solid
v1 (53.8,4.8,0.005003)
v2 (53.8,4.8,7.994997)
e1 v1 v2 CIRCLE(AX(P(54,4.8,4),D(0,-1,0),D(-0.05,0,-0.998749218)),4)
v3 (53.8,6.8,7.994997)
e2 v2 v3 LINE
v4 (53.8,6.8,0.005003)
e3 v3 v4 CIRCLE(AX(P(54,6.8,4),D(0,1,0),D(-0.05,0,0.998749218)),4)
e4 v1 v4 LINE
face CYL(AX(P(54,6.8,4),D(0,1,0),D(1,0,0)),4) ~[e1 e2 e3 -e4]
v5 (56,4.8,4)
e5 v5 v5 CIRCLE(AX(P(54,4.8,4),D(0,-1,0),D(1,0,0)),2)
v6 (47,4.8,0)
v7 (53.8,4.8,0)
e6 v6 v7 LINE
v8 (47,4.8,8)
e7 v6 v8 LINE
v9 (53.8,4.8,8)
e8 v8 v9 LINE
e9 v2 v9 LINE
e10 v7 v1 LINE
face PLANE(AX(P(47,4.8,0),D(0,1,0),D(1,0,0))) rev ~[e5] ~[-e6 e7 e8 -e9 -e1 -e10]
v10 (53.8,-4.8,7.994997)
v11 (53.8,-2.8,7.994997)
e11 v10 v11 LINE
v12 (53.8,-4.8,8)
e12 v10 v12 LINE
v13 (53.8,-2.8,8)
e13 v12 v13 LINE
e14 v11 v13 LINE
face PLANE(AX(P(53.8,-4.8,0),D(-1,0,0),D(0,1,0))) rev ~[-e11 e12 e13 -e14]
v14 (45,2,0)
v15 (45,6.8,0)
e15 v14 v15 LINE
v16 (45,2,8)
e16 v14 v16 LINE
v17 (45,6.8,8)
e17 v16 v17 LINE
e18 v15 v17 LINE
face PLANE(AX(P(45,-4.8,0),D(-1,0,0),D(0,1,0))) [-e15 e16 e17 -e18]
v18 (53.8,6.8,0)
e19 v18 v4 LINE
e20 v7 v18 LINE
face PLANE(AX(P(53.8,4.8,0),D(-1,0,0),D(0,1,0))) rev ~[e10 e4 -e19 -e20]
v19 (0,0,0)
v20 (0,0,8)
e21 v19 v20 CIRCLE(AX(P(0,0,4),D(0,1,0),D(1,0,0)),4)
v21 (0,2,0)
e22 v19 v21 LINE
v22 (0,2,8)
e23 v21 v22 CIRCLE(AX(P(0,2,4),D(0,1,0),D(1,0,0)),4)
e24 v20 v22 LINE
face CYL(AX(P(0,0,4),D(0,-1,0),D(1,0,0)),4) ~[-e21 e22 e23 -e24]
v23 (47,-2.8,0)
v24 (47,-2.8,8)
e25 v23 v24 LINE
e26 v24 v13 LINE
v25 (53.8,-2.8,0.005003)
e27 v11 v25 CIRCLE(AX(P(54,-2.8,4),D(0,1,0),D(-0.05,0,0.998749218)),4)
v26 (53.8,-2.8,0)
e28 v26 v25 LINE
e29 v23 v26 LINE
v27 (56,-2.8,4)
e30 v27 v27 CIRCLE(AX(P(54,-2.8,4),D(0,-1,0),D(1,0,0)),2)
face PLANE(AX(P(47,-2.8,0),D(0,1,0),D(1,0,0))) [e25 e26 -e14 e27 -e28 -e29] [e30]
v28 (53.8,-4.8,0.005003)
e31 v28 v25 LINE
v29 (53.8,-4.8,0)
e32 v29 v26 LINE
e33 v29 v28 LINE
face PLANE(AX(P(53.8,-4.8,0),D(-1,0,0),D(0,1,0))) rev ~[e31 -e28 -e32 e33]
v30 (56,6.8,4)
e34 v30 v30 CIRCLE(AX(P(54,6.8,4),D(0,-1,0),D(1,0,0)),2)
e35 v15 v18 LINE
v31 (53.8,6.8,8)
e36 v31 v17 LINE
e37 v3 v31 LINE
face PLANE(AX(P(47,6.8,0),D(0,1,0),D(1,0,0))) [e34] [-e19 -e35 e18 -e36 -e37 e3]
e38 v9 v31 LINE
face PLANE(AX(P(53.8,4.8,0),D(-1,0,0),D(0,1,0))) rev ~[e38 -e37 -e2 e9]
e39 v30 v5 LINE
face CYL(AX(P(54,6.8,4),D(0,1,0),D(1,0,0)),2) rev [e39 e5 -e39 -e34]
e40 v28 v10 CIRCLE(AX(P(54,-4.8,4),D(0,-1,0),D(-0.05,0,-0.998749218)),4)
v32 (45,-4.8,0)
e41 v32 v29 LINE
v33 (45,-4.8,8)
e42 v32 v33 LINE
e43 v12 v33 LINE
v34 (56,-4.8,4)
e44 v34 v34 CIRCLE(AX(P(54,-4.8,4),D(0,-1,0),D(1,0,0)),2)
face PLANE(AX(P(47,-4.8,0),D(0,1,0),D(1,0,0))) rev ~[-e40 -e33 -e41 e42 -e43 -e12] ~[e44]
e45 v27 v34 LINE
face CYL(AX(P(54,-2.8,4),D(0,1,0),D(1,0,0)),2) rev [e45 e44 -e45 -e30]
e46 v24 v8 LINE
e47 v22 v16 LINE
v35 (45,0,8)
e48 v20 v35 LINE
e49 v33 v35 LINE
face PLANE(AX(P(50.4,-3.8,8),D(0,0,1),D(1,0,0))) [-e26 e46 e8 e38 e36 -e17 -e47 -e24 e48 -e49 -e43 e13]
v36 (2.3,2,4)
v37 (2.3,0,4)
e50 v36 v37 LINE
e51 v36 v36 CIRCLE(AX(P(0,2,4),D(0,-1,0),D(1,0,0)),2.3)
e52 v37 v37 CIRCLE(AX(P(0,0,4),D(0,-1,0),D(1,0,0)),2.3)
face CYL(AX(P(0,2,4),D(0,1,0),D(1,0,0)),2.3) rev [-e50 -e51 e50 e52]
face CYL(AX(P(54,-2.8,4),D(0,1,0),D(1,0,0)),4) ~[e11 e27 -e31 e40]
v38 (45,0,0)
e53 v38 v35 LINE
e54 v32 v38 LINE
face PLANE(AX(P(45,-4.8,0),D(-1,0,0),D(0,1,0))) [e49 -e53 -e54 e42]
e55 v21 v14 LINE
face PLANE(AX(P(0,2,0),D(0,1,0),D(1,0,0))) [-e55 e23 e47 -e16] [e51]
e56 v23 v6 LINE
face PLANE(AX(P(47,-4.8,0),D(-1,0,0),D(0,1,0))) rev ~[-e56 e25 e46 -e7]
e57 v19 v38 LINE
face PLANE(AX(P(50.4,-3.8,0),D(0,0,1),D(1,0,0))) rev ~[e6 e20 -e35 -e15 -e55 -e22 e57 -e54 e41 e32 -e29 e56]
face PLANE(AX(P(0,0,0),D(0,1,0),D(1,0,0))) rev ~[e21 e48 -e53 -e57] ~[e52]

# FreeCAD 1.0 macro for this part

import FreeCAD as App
import Part
import Sketcher
from FreeCAD import Vector
Q = App.Units.Quantity


def add_polygon(sketch, points):
    """Adds a closed chain of lines whose ends are joined by coincident constraints."""
    first, n = sketch.GeometryCount, len(points)
    for a, b in zip(points, points[1:] + points[:1]):
        sketch.addGeometry(Part.LineSegment(App.Vector(*a, 0), App.Vector(*b, 0)), False)
    for i in range(n):
        sketch.addConstraint(Sketcher.Constraint("Coincident", first + i, 2, first + (i + 1) % n, 1))

doc = App.newDocument("Part")
body = doc.addObject("PartDesign::Body", "Body")

sketch1 = body.newObject("Sketcher::SketchObject", "Sketch")
sketch1.AttachmentSupport = (doc.getObject("XZ_Plane"), [""])
sketch1.MapMode = "FlatFace"
sketch1.AttachmentOffset = App.Placement(Vector(0, 0, -6.8), App.Rotation())
sketch1.addGeometry(Part.Circle(Vector(54, 4, 0), Vector(0, 0, 1), 2), False)
sketch1.addConstraint(Sketcher.Constraint("Diameter", 0, Q("4 mm")))
sketch1.addConstraint(Sketcher.Constraint("DistanceX", -1, 1, 0, 3, Q("54 mm")))
sketch1.addConstraint(Sketcher.Constraint("DistanceY", -1, 1, 0, 3, Q("4 mm")))
pad1 = body.newObject("PartDesign::Pad", "Pad")
pad1.Profile = sketch1
pad1.Length = 2
body2 = doc.addObject("PartDesign::Body", "Body001")

sketch2 = body2.newObject("Sketcher::SketchObject", "Sketch001")
sketch2.AttachmentSupport = (doc.getObject("XY_Plane001"), [""])
sketch2.MapMode = "FlatFace"
add_polygon(sketch2, [(47, 6.8), (47, 4.8), (53.8, 4.8), (53.8, 6.8)])
sketch2.addConstraint(Sketcher.Constraint("Vertical", 0))
sketch2.addConstraint(Sketcher.Constraint("Horizontal", 1))
sketch2.addConstraint(Sketcher.Constraint("Vertical", 2))
sketch2.addConstraint(Sketcher.Constraint("Horizontal", 3))
sketch2.addConstraint(Sketcher.Constraint("DistanceY", 0, 2, 0, 1, Q("2 mm")))
sketch2.addConstraint(Sketcher.Constraint("DistanceX", 1, 1, 1, 2, Q("6.8 mm")))
sketch2.addConstraint(Sketcher.Constraint("DistanceX", -1, 1, 0, 2, Q("47 mm")))
sketch2.addConstraint(Sketcher.Constraint("DistanceY", -1, 1, 0, 2, Q("4.8 mm")))
pad2 = body2.newObject("PartDesign::Pad", "Pad001")
pad2.Profile = sketch2
pad2.Length = 8
body3 = doc.addObject("PartDesign::Body", "Body002")

sketch3 = body3.newObject("Sketcher::SketchObject", "Sketch002")
sketch3.AttachmentSupport = (doc.getObject("XZ_Plane002"), [""])
sketch3.MapMode = "FlatFace"
sketch3.AttachmentOffset = App.Placement(Vector(0, 0, -6.8), App.Rotation())
sketch3.addGeometry(Part.Circle(Vector(54, 4, 0), Vector(0, 0, 1), 4), False)
sketch3.addConstraint(Sketcher.Constraint("Diameter", 0, Q("8 mm")))
sketch3.addConstraint(Sketcher.Constraint("DistanceX", -1, 1, 0, 3, Q("54 mm")))
sketch3.addConstraint(Sketcher.Constraint("DistanceY", -1, 1, 0, 3, Q("4 mm")))
pad3 = body3.newObject("PartDesign::Pad", "Pad002")
pad3.Profile = sketch3
pad3.Length = 2
doc.recompute()

boolean = body3.newObject("PartDesign::Boolean", "Boolean")
boolean.Type = "Fuse"
boolean.addObjects([body2])
doc.recompute()

boolean2 = body3.newObject("PartDesign::Boolean", "Boolean001")
boolean2.Type = "Cut"
boolean2.addObjects([body])
body4 = doc.addObject("PartDesign::Body", "Body003")

sketch4 = body4.newObject("Sketcher::SketchObject", "Sketch003")
sketch4.AttachmentSupport = (doc.getObject("XZ_Plane003"), [""])
sketch4.MapMode = "FlatFace"
sketch4.AttachmentOffset = App.Placement(Vector(0, 0, -2), App.Rotation())
sketch4.addGeometry(Part.Circle(Vector(0, 4, 0), Vector(0, 0, 1), 2.3), False)
sketch4.addConstraint(Sketcher.Constraint("PointOnObject", 0, 3, -2))
sketch4.addConstraint(Sketcher.Constraint("Diameter", 0, Q("4.6 mm")))
sketch4.addConstraint(Sketcher.Constraint("DistanceY", -1, 1, 0, 3, Q("4 mm")))
pad4 = body4.newObject("PartDesign::Pad", "Pad003")
pad4.Profile = sketch4
pad4.Length = 2
body5 = doc.addObject("PartDesign::Body", "Body004")

sketch5 = body5.newObject("Sketcher::SketchObject", "Sketch004")
sketch5.AttachmentSupport = (doc.getObject("XZ_Plane004"), [""])
sketch5.MapMode = "FlatFace"
sketch5.addGeometry(Part.Circle(Vector(0, 4, 0), Vector(0, 0, 1), 4), False)
sketch5.addConstraint(Sketcher.Constraint("PointOnObject", 0, 3, -2))
sketch5.addConstraint(Sketcher.Constraint("Diameter", 0, Q("8 mm")))
sketch5.addConstraint(Sketcher.Constraint("DistanceY", -1, 1, 0, 3, Q("4 mm")))
pad5 = body5.newObject("PartDesign::Pad", "Pad004")
pad5.Profile = sketch5
pad5.Length = 2
pad5.Reversed = True
body6 = doc.addObject("PartDesign::Body", "Body005")

sketch6 = body6.newObject("Sketcher::SketchObject", "Sketch005")
sketch6.AttachmentSupport = (doc.getObject("XY_Plane005"), [""])
sketch6.MapMode = "FlatFace"
add_polygon(sketch6, [(0, 2), (0, 0), (45, 0), (45, 2)])
sketch6.addConstraint(Sketcher.Constraint("Vertical", 0))
sketch6.addConstraint(Sketcher.Constraint("Horizontal", 1))
sketch6.addConstraint(Sketcher.Constraint("Vertical", 2))
sketch6.addConstraint(Sketcher.Constraint("Horizontal", 3))
sketch6.addConstraint(Sketcher.Constraint("Coincident", 0, 2, -1, 1))
sketch6.addConstraint(Sketcher.Constraint("DistanceX", 1, 1, 1, 2, Q("45 mm")))
sketch6.addConstraint(Sketcher.Constraint("DistanceY", 0, 2, 0, 1, Q("2 mm")))
pad6 = body6.newObject("PartDesign::Pad", "Pad005")
pad6.Profile = sketch6
pad6.Length = 8
doc.recompute()

boolean3 = body6.newObject("PartDesign::Boolean", "Boolean002")
boolean3.Type = "Fuse"
boolean3.addObjects([body5])
doc.recompute()

boolean4 = body6.newObject("PartDesign::Boolean", "Boolean003")
boolean4.Type = "Cut"
boolean4.addObjects([body4])
body7 = doc.addObject("PartDesign::Body", "Body006")

sketch7 = body7.newObject("Sketcher::SketchObject", "Sketch006")
sketch7.AttachmentSupport = (doc.getObject("XZ_Plane006"), [""])
sketch7.MapMode = "FlatFace"
sketch7.AttachmentOffset = App.Placement(Vector(0, 0, -6.8), App.Rotation())
sketch7.addGeometry(Part.Circle(Vector(54, 4, 0), Vector(0, 0, 1), 2), False)
sketch7.addConstraint(Sketcher.Constraint("Diameter", 0, Q("4 mm")))
sketch7.addConstraint(Sketcher.Constraint("DistanceX", -1, 1, 0, 3, Q("54 mm")))
sketch7.addConstraint(Sketcher.Constraint("DistanceY", -1, 1, 0, 3, Q("4 mm")))
pad7 = body7.newObject("PartDesign::Pad", "Pad006")
pad7.Profile = sketch7
pad7.Length = 2
body8 = doc.addObject("PartDesign::Body", "Body007")

sketch8 = body8.newObject("Sketcher::SketchObject", "Sketch007")
sketch8.AttachmentSupport = (doc.getObject("XY_Plane007"), [""])
sketch8.MapMode = "FlatFace"
add_polygon(sketch8, [(47, 6.8), (47, 4.8), (53.8, 4.8), (53.8, 6.8)])
sketch8.addConstraint(Sketcher.Constraint("Vertical", 0))
sketch8.addConstraint(Sketcher.Constraint("Horizontal", 1))
sketch8.addConstraint(Sketcher.Constraint("Vertical", 2))
sketch8.addConstraint(Sketcher.Constraint("Horizontal", 3))
sketch8.addConstraint(Sketcher.Constraint("DistanceY", 0, 2, 0, 1, Q("2 mm")))
sketch8.addConstraint(Sketcher.Constraint("DistanceX", 1, 1, 1, 2, Q("6.8 mm")))
sketch8.addConstraint(Sketcher.Constraint("DistanceX", -1, 1, 0, 2, Q("47 mm")))
sketch8.addConstraint(Sketcher.Constraint("DistanceY", -1, 1, 0, 2, Q("4.8 mm")))
pad8 = body8.newObject("PartDesign::Pad", "Pad007")
pad8.Profile = sketch8
pad8.Length = 8
body9 = doc.addObject("PartDesign::Body", "Body008")

sketch9 = body9.newObject("Sketcher::SketchObject", "Sketch008")
sketch9.AttachmentSupport = (doc.getObject("XZ_Plane008"), [""])
sketch9.MapMode = "FlatFace"
sketch9.AttachmentOffset = App.Placement(Vector(0, 0, -6.8), App.Rotation())
sketch9.addGeometry(Part.Circle(Vector(54, 4, 0), Vector(0, 0, 1), 4), False)
sketch9.addConstraint(Sketcher.Constraint("Diameter", 0, Q("8 mm")))
sketch9.addConstraint(Sketcher.Constraint("DistanceX", -1, 1, 0, 3, Q("54 mm")))
sketch9.addConstraint(Sketcher.Constraint("DistanceY", -1, 1, 0, 3, Q("4 mm")))
pad9 = body9.newObject("PartDesign::Pad", "Pad008")
pad9.Profile = sketch9
pad9.Length = 2
doc.recompute()

boolean5 = body9.newObject("PartDesign::Boolean", "Boolean004")
boolean5.Type = "Fuse"
boolean5.addObjects([body8])
doc.recompute()

boolean6 = body9.newObject("PartDesign::Boolean", "Boolean005")
boolean6.Type = "Cut"
boolean6.addObjects([body7])
body10 = doc.addObject("PartDesign::Body", "Body009")
doc.recompute()

body9.Placement = App.Placement(Vector(0, -9.6, 0), App.Rotation(Vector(0, 0, 1), 0))
boolean7 = body10.newObject("PartDesign::Boolean", "Boolean006")
boolean7.Type = "Fuse"
boolean7.addObjects([body9])
body11 = doc.addObject("PartDesign::Body", "Body010")

sketch10 = body11.newObject("Sketcher::SketchObject", "Sketch009")
sketch10.AttachmentSupport = (doc.getObject("XY_Plane010"), [""])
sketch10.MapMode = "FlatFace"
add_polygon(sketch10, [(45, 6.8), (45, -4.8), (47, -4.8), (47, 6.8)])
sketch10.addConstraint(Sketcher.Constraint("Vertical", 0))
sketch10.addConstraint(Sketcher.Constraint("Horizontal", 1))
sketch10.addConstraint(Sketcher.Constraint("Vertical", 2))
sketch10.addConstraint(Sketcher.Constraint("Horizontal", 3))
sketch10.addConstraint(Sketcher.Constraint("DistanceX", 1, 1, 1, 2, Q("2 mm")))
sketch10.addConstraint(Sketcher.Constraint("DistanceY", 0, 2, 0, 1, Q("11.6 mm")))
sketch10.addConstraint(Sketcher.Constraint("DistanceX", -1, 1, 0, 2, Q("45 mm")))
sketch10.addConstraint(Sketcher.Constraint("DistanceY", 0, 2, -1, 1, Q("4.8 mm")))
pad10 = body11.newObject("PartDesign::Pad", "Pad009")
pad10.Profile = sketch10
pad10.Length = 8
doc.recompute()

boolean8 = body11.newObject("PartDesign::Boolean", "Boolean007")
boolean8.Type = "Fuse"
boolean8.addObjects([body3])
doc.recompute()

boolean9 = body11.newObject("PartDesign::Boolean", "Boolean008")
boolean9.Type = "Fuse"
boolean9.addObjects([body6])
doc.recompute()

boolean10 = body11.newObject("PartDesign::Boolean", "Boolean009")
boolean10.Type = "Fuse"
boolean10.addObjects([body10])

doc.recompute()
